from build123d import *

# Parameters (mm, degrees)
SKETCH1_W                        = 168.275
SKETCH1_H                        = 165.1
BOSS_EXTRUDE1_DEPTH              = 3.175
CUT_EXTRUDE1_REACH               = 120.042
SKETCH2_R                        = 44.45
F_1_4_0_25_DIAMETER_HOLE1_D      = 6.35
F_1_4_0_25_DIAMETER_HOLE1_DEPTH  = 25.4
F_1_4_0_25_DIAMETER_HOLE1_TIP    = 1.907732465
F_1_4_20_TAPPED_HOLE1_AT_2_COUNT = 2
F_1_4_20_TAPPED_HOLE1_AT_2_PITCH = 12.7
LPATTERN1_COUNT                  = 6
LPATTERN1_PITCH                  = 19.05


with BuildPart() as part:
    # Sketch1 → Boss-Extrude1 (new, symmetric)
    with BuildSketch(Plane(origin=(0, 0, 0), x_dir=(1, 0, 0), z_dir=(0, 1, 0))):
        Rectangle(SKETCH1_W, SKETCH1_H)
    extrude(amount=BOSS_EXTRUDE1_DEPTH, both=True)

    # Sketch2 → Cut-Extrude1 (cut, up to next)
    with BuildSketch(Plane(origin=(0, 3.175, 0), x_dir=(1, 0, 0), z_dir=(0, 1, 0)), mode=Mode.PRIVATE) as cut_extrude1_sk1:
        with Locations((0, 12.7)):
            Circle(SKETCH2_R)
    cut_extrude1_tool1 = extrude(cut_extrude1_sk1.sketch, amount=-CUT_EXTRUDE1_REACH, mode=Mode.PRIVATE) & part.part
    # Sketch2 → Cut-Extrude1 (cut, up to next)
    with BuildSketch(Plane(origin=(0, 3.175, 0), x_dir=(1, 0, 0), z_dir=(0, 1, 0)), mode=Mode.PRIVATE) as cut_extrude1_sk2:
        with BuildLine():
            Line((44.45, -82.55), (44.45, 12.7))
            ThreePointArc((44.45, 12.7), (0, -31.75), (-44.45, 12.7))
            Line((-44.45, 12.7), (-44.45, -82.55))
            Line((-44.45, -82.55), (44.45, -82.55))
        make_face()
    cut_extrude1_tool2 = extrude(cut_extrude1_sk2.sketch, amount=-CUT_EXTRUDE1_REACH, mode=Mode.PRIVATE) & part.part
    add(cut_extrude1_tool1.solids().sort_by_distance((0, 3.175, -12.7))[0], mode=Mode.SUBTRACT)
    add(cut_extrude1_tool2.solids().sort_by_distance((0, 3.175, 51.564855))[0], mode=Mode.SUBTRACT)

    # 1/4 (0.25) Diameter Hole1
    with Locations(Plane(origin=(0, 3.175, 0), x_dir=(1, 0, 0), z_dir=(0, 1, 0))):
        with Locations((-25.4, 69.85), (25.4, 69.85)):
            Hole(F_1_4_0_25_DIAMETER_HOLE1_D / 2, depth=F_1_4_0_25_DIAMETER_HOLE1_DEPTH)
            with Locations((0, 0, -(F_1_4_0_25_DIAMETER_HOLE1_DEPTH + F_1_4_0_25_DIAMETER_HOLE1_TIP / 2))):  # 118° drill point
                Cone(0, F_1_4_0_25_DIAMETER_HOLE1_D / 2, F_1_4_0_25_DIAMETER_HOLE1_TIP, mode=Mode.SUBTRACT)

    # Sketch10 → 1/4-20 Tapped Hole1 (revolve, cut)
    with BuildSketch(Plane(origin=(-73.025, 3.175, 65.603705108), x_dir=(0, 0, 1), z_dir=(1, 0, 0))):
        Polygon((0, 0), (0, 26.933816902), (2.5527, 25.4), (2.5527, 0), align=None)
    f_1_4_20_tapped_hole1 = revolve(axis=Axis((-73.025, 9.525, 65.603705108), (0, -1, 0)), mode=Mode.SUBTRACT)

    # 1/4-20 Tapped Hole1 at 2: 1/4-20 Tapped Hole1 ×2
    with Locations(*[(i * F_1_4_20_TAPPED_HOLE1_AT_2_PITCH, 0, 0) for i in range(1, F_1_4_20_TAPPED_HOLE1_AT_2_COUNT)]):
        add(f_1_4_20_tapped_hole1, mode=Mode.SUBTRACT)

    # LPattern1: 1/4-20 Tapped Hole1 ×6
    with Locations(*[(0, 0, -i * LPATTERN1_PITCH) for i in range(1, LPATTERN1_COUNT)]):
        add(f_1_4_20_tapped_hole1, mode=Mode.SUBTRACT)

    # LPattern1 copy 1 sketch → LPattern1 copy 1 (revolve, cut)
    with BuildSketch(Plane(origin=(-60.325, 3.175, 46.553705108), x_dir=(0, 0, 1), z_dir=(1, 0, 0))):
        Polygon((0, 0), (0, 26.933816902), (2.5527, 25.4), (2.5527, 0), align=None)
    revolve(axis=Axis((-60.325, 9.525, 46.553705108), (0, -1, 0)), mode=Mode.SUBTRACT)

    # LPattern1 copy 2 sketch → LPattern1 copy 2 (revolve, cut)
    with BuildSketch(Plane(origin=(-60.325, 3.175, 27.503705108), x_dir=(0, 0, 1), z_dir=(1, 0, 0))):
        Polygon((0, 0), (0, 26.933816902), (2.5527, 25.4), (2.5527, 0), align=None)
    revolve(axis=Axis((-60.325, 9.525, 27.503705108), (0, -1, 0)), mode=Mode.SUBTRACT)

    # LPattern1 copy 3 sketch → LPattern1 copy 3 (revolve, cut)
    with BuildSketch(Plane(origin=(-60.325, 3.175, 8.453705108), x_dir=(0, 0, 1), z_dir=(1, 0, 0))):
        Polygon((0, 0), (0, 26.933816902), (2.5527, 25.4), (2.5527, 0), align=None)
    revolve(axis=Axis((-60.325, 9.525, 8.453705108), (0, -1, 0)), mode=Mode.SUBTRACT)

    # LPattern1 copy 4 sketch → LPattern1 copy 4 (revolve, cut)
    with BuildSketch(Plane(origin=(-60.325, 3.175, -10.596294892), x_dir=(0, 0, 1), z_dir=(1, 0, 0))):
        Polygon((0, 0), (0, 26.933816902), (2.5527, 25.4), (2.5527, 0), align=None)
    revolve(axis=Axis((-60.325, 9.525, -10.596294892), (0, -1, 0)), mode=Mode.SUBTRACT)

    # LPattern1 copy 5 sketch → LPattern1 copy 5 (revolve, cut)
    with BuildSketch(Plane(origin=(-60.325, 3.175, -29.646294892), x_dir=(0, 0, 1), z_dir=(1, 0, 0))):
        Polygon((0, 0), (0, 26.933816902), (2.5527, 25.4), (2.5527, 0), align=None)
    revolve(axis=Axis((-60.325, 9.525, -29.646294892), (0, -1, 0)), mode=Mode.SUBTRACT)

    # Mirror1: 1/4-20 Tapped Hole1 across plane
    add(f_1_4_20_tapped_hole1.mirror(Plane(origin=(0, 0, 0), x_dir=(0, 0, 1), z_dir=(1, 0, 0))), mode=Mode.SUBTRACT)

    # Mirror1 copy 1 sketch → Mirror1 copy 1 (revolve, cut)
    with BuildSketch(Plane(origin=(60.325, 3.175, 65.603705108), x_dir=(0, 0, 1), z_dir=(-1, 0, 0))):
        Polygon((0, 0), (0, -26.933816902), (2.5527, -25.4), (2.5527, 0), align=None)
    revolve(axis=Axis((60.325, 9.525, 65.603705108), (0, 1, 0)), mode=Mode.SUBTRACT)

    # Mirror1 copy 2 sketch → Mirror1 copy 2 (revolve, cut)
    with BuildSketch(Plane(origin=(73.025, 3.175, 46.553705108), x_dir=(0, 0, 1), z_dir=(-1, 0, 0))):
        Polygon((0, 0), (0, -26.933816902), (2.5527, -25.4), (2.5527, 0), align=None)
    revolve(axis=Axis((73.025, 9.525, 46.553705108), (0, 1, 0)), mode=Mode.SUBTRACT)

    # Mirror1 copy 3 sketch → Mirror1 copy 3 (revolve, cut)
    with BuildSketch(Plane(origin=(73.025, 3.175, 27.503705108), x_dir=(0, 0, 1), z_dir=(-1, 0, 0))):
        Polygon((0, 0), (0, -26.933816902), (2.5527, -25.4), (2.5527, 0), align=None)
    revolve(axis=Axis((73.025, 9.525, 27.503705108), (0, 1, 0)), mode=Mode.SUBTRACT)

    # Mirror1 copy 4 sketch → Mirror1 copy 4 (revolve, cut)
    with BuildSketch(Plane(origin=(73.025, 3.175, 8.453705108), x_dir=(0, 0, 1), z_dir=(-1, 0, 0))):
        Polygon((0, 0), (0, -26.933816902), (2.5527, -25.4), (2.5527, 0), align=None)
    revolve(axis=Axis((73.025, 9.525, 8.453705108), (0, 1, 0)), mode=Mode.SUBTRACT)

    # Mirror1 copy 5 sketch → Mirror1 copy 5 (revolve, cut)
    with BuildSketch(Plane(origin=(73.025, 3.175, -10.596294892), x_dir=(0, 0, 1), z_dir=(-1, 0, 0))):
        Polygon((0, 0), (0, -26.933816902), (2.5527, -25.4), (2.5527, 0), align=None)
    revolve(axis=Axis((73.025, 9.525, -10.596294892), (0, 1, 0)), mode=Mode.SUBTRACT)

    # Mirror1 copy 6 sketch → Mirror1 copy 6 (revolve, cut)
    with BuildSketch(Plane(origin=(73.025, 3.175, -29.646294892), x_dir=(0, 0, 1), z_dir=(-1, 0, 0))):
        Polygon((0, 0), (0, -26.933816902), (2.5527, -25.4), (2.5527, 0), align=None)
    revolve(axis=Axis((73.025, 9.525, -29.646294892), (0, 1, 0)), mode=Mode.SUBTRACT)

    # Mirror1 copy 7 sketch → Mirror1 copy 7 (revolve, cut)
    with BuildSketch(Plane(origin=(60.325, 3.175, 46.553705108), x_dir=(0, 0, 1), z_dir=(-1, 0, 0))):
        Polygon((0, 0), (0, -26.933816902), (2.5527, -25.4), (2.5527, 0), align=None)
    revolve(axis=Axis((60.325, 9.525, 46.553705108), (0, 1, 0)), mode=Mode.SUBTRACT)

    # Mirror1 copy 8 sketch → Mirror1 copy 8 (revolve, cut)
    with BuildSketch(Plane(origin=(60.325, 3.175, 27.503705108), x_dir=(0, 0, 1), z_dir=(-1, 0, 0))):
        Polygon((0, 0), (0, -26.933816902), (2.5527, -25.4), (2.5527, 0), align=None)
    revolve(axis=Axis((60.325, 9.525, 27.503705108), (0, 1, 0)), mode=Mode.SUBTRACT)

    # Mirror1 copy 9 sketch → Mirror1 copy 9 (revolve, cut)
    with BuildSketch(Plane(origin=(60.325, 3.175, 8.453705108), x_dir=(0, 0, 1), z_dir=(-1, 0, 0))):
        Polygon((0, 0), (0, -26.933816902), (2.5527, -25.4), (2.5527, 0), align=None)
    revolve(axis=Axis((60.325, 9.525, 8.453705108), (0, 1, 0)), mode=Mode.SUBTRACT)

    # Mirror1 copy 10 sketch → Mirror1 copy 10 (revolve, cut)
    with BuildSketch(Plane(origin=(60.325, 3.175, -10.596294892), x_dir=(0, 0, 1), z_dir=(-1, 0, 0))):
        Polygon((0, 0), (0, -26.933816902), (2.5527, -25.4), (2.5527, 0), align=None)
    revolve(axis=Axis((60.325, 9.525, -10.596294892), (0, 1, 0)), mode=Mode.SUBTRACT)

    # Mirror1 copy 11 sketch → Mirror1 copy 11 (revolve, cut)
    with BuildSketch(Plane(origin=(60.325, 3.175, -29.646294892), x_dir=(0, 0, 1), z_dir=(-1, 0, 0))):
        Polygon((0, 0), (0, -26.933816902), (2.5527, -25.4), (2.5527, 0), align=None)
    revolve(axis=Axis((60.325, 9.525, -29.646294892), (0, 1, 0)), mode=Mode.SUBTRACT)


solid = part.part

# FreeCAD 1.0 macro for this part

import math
import FreeCAD as App
import Part
import Sketcher

V = App.Vector
Q = App.Units.Quantity

doc = App.newDocument("Part")
body = doc.addObject("PartDesign::Body", "Body")

# Sketch on XZ plane
sketch1 = body.newObject("Sketcher::SketchObject", "Sketch")
sketch1.AttachmentSupport = (doc.getObject("XZ_Plane"), [""])
sketch1.MapMode = "FlatFace"
sketch1.addGeometry(Part.LineSegment(V(-84, -83, 0), V(-84, 83, 0)), False)
sketch1.addGeometry(Part.LineSegment(V(-84, 83, 0), V(84, 83, 0)), False)
sketch1.addGeometry(Part.LineSegment(V(84, 83, 0), V(84, -83, 0)), False)
sketch1.addGeometry(Part.LineSegment(V(84, -83, 0), V(-84, -83, 0)), False)
sketch1.addConstraint(Sketcher.Constraint("Coincident", 0, 2, 1, 1))
sketch1.addConstraint(Sketcher.Constraint("Coincident", 1, 2, 2, 1))
sketch1.addConstraint(Sketcher.Constraint("Coincident", 2, 2, 3, 1))
sketch1.addConstraint(Sketcher.Constraint("Coincident", 3, 2, 0, 1))
sketch1.addConstraint(Sketcher.Constraint("Vertical", 0))
sketch1.addConstraint(Sketcher.Constraint("Horizontal", 1))
sketch1.addConstraint(Sketcher.Constraint("Vertical", 2))
sketch1.addConstraint(Sketcher.Constraint("Horizontal", 3))
sketch1.addConstraint(Sketcher.Constraint("Symmetric", 0, 2, 2, 2, -1, 1))
sketch1.addConstraint(Sketcher.Constraint("DistanceY", 0, 1, 0, 2, Q("6.5 in")))
sketch1.addConstraint(Sketcher.Constraint("DistanceX", 1, 1, 1, 2, Q("6.625 in")))
pad1 = body.newObject("PartDesign::Pad", "Pad")
pad1.Profile = sketch1
pad1.Length = Q("0.25 in")
pad1.Midplane = True

# Sketch on XZ plane
sketch2 = body.newObject("Sketcher::SketchObject", "Sketch001")
sketch2.AttachmentSupport = (doc.getObject("XZ_Plane"), [""])
sketch2.MapMode = "FlatFace"
sketch2.AttachmentOffset = App.Placement(V(0, 0, -0.125 * 25.4), App.Rotation())
sketch2.addGeometry(Part.Circle(V(0, -13, 0), V(0, 0, 1), 44), False)
sketch2.addConstraint(Sketcher.Constraint("PointOnObject", 0, 3, -2))
sketch2.addConstraint(Sketcher.Constraint("Diameter", 0, Q("3.5 in")))
sketch2.addConstraint(Sketcher.Constraint("DistanceY", 0, 3, -1, 1, Q("0.5 in")))
pocket1 = body.newObject("PartDesign::Pocket", "Pocket")
pocket1.Profile = sketch2
pocket1.Type = "UpToFirst"
pocket1.Reversed = True

# Sketch on XZ plane
sketch3 = body.newObject("Sketcher::SketchObject", "Sketch002")
sketch3.AttachmentSupport = (doc.getObject("XZ_Plane"), [""])
sketch3.MapMode = "FlatFace"
sketch3.AttachmentOffset = App.Placement(V(0, 0, -0.125 * 25.4), App.Rotation())
sketch3.addGeometry(Part.LineSegment(V(44, 83, 0), V(44, -13, 0)), False)
sketch3.addGeometry(Part.ArcOfCircle(Part.Circle(V(0, -13, 0), V(0, 0, 1), 44), math.radians(0), math.radians(180)), False)
sketch3.addGeometry(Part.LineSegment(V(-44, -13, 0), V(-44, 83, 0)), False)
sketch3.addGeometry(Part.LineSegment(V(-44, 83, 0), V(44, 83, 0)), False)
sketch3.addConstraint(Sketcher.Constraint("Tangent", 0, 2, 1, 1))
sketch3.addConstraint(Sketcher.Constraint("Tangent", 1, 2, 2, 1))
sketch3.addConstraint(Sketcher.Constraint("Coincident", 2, 2, 3, 1))
sketch3.addConstraint(Sketcher.Constraint("Coincident", 3, 2, 0, 1))
sketch3.addConstraint(Sketcher.Constraint("Vertical", 0))
sketch3.addConstraint(Sketcher.Constraint("Vertical", 2))
sketch3.addConstraint(Sketcher.Constraint("Horizontal", 3))
sketch3.addConstraint(Sketcher.Constraint("PointOnObject", 1, 3, -2))
sketch3.addConstraint(Sketcher.Constraint("Radius", 1, Q("1.75 in")))
sketch3.addConstraint(Sketcher.Constraint("DistanceY", 0, 2, 0, 1, Q("3.75 in")))
sketch3.addConstraint(Sketcher.Constraint("DistanceY", 1, 3, -1, 1, Q("0.5 in")))
pocket2 = body.newObject("PartDesign::Pocket", "Pocket001")
pocket2.Profile = sketch3
pocket2.Type = "UpToFirst"
pocket2.Reversed = True

# Sketch on XZ plane
sketch4 = body.newObject("Sketcher::SketchObject", "Sketch003")
sketch4.AttachmentSupport = (doc.getObject("XZ_Plane"), [""])
sketch4.MapMode = "FlatFace"
sketch4.AttachmentOffset = App.Placement(V(0, 0, -0.125 * 25.4), App.Rotation())
sketch4.addGeometry(Part.Circle(V(-25.4, -69.8, 0), V(0, 0, 1), 3.2), False)
sketch4.addGeometry(Part.Circle(V(25.4, -69.8, 0), V(0, 0, 1), 3.2), False)
sketch4.addConstraint(Sketcher.Constraint("Equal", 0, 1))
sketch4.addConstraint(Sketcher.Constraint("Symmetric", 0, 3, 1, 3, -2))
sketch4.addConstraint(Sketcher.Constraint("Diameter", 0, Q("0.25 in")))
sketch4.addConstraint(Sketcher.Constraint("DistanceX", 0, 3, -1, 1, Q("1 in")))
sketch4.addConstraint(Sketcher.Constraint("DistanceY", 0, 3, -1, 1, Q("2.75 in")))
doc.recompute()
hole = body.newObject("PartDesign::Hole", "Hole")
hole.Profile = sketch4
hole.ThreadType = "None"
hole.Diameter = Q("0.25 in")
hole.DepthType = "Dimension"
hole.Depth = Q("1 in")
hole.DrillPoint = "Angled"
hole.DrillPointAngle = 118
hole.Reversed = True

# Sketch on YZ plane
sketch5 = body.newObject("Sketcher::SketchObject", "Sketch004")
sketch5.AttachmentSupport = (doc.getObject("YZ_Plane"), [""])
sketch5.MapMode = "FlatFace"
sketch5.AttachmentOffset = App.Placement(V(0, 0, -2.875 * 25.4), App.Rotation())
sketch5.addGeometry(Part.LineSegment(V(-23.8, 65.6, 0), V(3.2, 65.6, 0)), False)
sketch5.addGeometry(Part.LineSegment(V(3.2, 65.6, 0), V(3.2, 68.2, 0)), False)
sketch5.addGeometry(Part.LineSegment(V(3.2, 68.2, 0), V(-22.2, 68.2, 0)), False)
sketch5.addGeometry(Part.LineSegment(V(-22.2, 68.2, 0), V(-23.8, 65.6, 0)), False)
sketch5.addGeometry(Part.LineSegment(V(3.2, 65.6, 0), V(-23.8, 65.6, 0)), True)  # axis
sketch5.addConstraint(Sketcher.Constraint("Coincident", 0, 2, 1, 1))
sketch5.addConstraint(Sketcher.Constraint("Coincident", 1, 2, 2, 1))
sketch5.addConstraint(Sketcher.Constraint("Coincident", 2, 2, 3, 1))
sketch5.addConstraint(Sketcher.Constraint("Coincident", 3, 2, 0, 1))
sketch5.addConstraint(Sketcher.Constraint("Horizontal", 0))
sketch5.addConstraint(Sketcher.Constraint("Vertical", 1))
sketch5.addConstraint(Sketcher.Constraint("Horizontal", 2))
sketch5.addConstraint(Sketcher.Constraint("Horizontal", 4))
sketch5.addConstraint(Sketcher.Constraint("Coincident", 4, 1, 0, 2))
sketch5.addConstraint(Sketcher.Constraint("Equal", 0, 4))
sketch5.addConstraint(Sketcher.Constraint("DistanceX", 2, 2, 2, 1, Q("1 in")))
sketch5.addConstraint(Sketcher.Constraint("Angle", 3, Q("-121 deg")))
sketch5.addConstraint(Sketcher.Constraint("DistanceY", 1, 1, 1, 2, Q("0.1005 in")))
sketch5.addConstraint(Sketcher.Constraint("DistanceX", -1, 1, 0, 2, Q("0.125 in")))
sketch5.addConstraint(Sketcher.Constraint("DistanceY", -1, 1, 0, 2, 65.603705))
groove = body.newObject("PartDesign::Groove", "Groove")
groove.Profile = sketch5
groove.ReferenceAxis = (sketch5, ["Axis0"])
groove.Angle = 360
doc.recompute()

linearpattern = body.newObject("PartDesign::LinearPattern", "LinearPattern")
linearpattern.Originals = [groove]
linearpattern.Direction = (doc.getObject("X_Axis"), [""])
linearpattern.Mode = "offset"
linearpattern.Offset = Q("0.5 in")
linearpattern.Occurrences = 2
body.Tip = linearpattern
doc.recompute()

linearpattern2 = body.newObject("PartDesign::LinearPattern", "LinearPattern001")
linearpattern2.Originals = [groove]
linearpattern2.Direction = (doc.getObject("Z_Axis"), [""])
linearpattern2.Mode = "offset"
linearpattern2.Offset = Q("0.75 in")
linearpattern2.Occurrences = 6
linearpattern2.Reversed = True
body.Tip = linearpattern2

# Sketch on YZ plane
sketch6 = body.newObject("Sketcher::SketchObject", "Sketch005")
sketch6.AttachmentSupport = (doc.getObject("YZ_Plane"), [""])
sketch6.MapMode = "FlatFace"
sketch6.AttachmentOffset = App.Placement(V(0, 0, -2.375 * 25.4), App.Rotation())
sketch6.addGeometry(Part.LineSegment(V(-23.8, 46.6, 0), V(3.2, 46.6, 0)), False)
sketch6.addGeometry(Part.LineSegment(V(3.2, 46.6, 0), V(3.2, 49.1, 0)), False)
sketch6.addGeometry(Part.LineSegment(V(3.2, 49.1, 0), V(-22.2, 49.1, 0)), False)
sketch6.addGeometry(Part.LineSegment(V(-22.2, 49.1, 0), V(-23.8, 46.6, 0)), False)
sketch6.addGeometry(Part.LineSegment(V(3.2, 46.6, 0), V(-23.8, 46.6, 0)), True)  # axis
sketch6.addConstraint(Sketcher.Constraint("Coincident", 0, 2, 1, 1))
sketch6.addConstraint(Sketcher.Constraint("Coincident", 1, 2, 2, 1))
sketch6.addConstraint(Sketcher.Constraint("Coincident", 2, 2, 3, 1))
sketch6.addConstraint(Sketcher.Constraint("Coincident", 3, 2, 0, 1))
sketch6.addConstraint(Sketcher.Constraint("Horizontal", 0))
sketch6.addConstraint(Sketcher.Constraint("Vertical", 1))
sketch6.addConstraint(Sketcher.Constraint("Horizontal", 2))
sketch6.addConstraint(Sketcher.Constraint("Horizontal", 4))
sketch6.addConstraint(Sketcher.Constraint("Coincident", 4, 1, 0, 2))
sketch6.addConstraint(Sketcher.Constraint("Equal", 0, 4))
sketch6.addConstraint(Sketcher.Constraint("DistanceX", 2, 2, 2, 1, Q("1 in")))
sketch6.addConstraint(Sketcher.Constraint("Angle", 3, Q("-121 deg")))
sketch6.addConstraint(Sketcher.Constraint("DistanceY", 1, 1, 1, 2, Q("0.1005 in")))
sketch6.addConstraint(Sketcher.Constraint("DistanceX", -1, 1, 0, 2, Q("0.125 in")))
sketch6.addConstraint(Sketcher.Constraint("DistanceY", -1, 1, 0, 2, 46.553705))
groove2 = body.newObject("PartDesign::Groove", "Groove001")
groove2.Profile = sketch6
groove2.ReferenceAxis = (sketch6, ["Axis0"])
groove2.Angle = 360

# Sketch on YZ plane
sketch7 = body.newObject("Sketcher::SketchObject", "Sketch006")
sketch7.AttachmentSupport = (doc.getObject("YZ_Plane"), [""])
sketch7.MapMode = "FlatFace"
sketch7.AttachmentOffset = App.Placement(V(0, 0, -2.375 * 25.4), App.Rotation())
sketch7.addGeometry(Part.LineSegment(V(-23.8, 27.5, 0), V(3.2, 27.5, 0)), False)
sketch7.addGeometry(Part.LineSegment(V(3.2, 27.5, 0), V(3.2, 30.1, 0)), False)
sketch7.addGeometry(Part.LineSegment(V(3.2, 30.1, 0), V(-22.2, 30.1, 0)), False)
sketch7.addGeometry(Part.LineSegment(V(-22.2, 30.1, 0), V(-23.8, 27.5, 0)), False)
sketch7.addGeometry(Part.LineSegment(V(3.2, 27.5, 0), V(-23.8, 27.5, 0)), True)  # axis
sketch7.addConstraint(Sketcher.Constraint("Coincident", 0, 2, 1, 1))
sketch7.addConstraint(Sketcher.Constraint("Coincident", 1, 2, 2, 1))
sketch7.addConstraint(Sketcher.Constraint("Coincident", 2, 2, 3, 1))
sketch7.addConstraint(Sketcher.Constraint("Coincident", 3, 2, 0, 1))
sketch7.addConstraint(Sketcher.Constraint("Horizontal", 0))
sketch7.addConstraint(Sketcher.Constraint("Vertical", 1))
sketch7.addConstraint(Sketcher.Constraint("Horizontal", 2))
sketch7.addConstraint(Sketcher.Constraint("Horizontal", 4))
sketch7.addConstraint(Sketcher.Constraint("Coincident", 4, 1, 0, 2))
sketch7.addConstraint(Sketcher.Constraint("Equal", 0, 4))
sketch7.addConstraint(Sketcher.Constraint("DistanceX", 2, 2, 2, 1, Q("1 in")))
sketch7.addConstraint(Sketcher.Constraint("Angle", 3, Q("-121 deg")))
sketch7.addConstraint(Sketcher.Constraint("DistanceY", 1, 1, 1, 2, Q("0.1005 in")))
sketch7.addConstraint(Sketcher.Constraint("DistanceX", -1, 1, 0, 2, Q("0.125 in")))
sketch7.addConstraint(Sketcher.Constraint("DistanceY", -1, 1, 0, 2, 27.503705))
groove3 = body.newObject("PartDesign::Groove", "Groove002")
groove3.Profile = sketch7
groove3.ReferenceAxis = (sketch7, ["Axis0"])
groove3.Angle = 360

# Sketch on YZ plane
sketch8 = body.newObject("Sketcher::SketchObject", "Sketch007")
sketch8.AttachmentSupport = (doc.getObject("YZ_Plane"), [""])
sketch8.MapMode = "FlatFace"
sketch8.AttachmentOffset = App.Placement(V(0, 0, -2.375 * 25.4), App.Rotation())
sketch8.addGeometry(Part.LineSegment(V(-23.8, 8.5, 0), V(3.2, 8.5, 0)), False)
sketch8.addGeometry(Part.LineSegment(V(3.2, 8.5, 0), V(3.2, 11, 0)), False)
sketch8.addGeometry(Part.LineSegment(V(3.2, 11, 0), V(-22.2, 11, 0)), False)
sketch8.addGeometry(Part.LineSegment(V(-22.2, 11, 0), V(-23.8, 8.5, 0)), False)
sketch8.addGeometry(Part.LineSegment(V(3.2, 8.5, 0), V(-23.8, 8.5, 0)), True)  # axis
sketch8.addConstraint(Sketcher.Constraint("Coincident", 0, 2, 1, 1))
sketch8.addConstraint(Sketcher.Constraint("Coincident", 1, 2, 2, 1))
sketch8.addConstraint(Sketcher.Constraint("Coincident", 2, 2, 3, 1))
sketch8.addConstraint(Sketcher.Constraint("Coincident", 3, 2, 0, 1))
sketch8.addConstraint(Sketcher.Constraint("Horizontal", 0))
sketch8.addConstraint(Sketcher.Constraint("Vertical", 1))
sketch8.addConstraint(Sketcher.Constraint("Horizontal", 2))
sketch8.addConstraint(Sketcher.Constraint("Horizontal", 4))
sketch8.addConstraint(Sketcher.Constraint("Coincident", 4, 1, 0, 2))
sketch8.addConstraint(Sketcher.Constraint("Equal", 0, 4))
sketch8.addConstraint(Sketcher.Constraint("DistanceX", 2, 2, 2, 1, Q("1 in")))
sketch8.addConstraint(Sketcher.Constraint("Angle", 3, Q("-121 deg")))
sketch8.addConstraint(Sketcher.Constraint("DistanceY", 1, 1, 1, 2, Q("0.1005 in")))
sketch8.addConstraint(Sketcher.Constraint("DistanceX", -1, 1, 0, 2, Q("0.125 in")))
sketch8.addConstraint(Sketcher.Constraint("DistanceY", -1, 1, 0, 2, 8.453705))
groove4 = body.newObject("PartDesign::Groove", "Groove003")
groove4.Profile = sketch8
groove4.ReferenceAxis = (sketch8, ["Axis0"])
groove4.Angle = 360

# Sketch on YZ plane
sketch9 = body.newObject("Sketcher::SketchObject", "Sketch008")
sketch9.AttachmentSupport = (doc.getObject("YZ_Plane"), [""])
sketch9.MapMode = "FlatFace"
sketch9.AttachmentOffset = App.Placement(V(0, 0, -2.375 * 25.4), App.Rotation())
sketch9.addGeometry(Part.LineSegment(V(-23.8, -10.6, 0), V(3.2, -10.6, 0)), False)
sketch9.addGeometry(Part.LineSegment(V(3.2, -10.6, 0), V(3.2, -8, 0)), False)
sketch9.addGeometry(Part.LineSegment(V(3.2, -8, 0), V(-22.2, -8, 0)), False)
sketch9.addGeometry(Part.LineSegment(V(-22.2, -8, 0), V(-23.8, -10.6, 0)), False)
sketch9.addGeometry(Part.LineSegment(V(3.2, -10.6, 0), V(-23.8, -10.6, 0)), True)  # axis
sketch9.addConstraint(Sketcher.Constraint("Coincident", 0, 2, 1, 1))
sketch9.addConstraint(Sketcher.Constraint("Coincident", 1, 2, 2, 1))
sketch9.addConstraint(Sketcher.Constraint("Coincident", 2, 2, 3, 1))
sketch9.addConstraint(Sketcher.Constraint("Coincident", 3, 2, 0, 1))
sketch9.addConstraint(Sketcher.Constraint("Horizontal", 0))
sketch9.addConstraint(Sketcher.Constraint("Vertical", 1))
sketch9.addConstraint(Sketcher.Constraint("Horizontal", 2))
sketch9.addConstraint(Sketcher.Constraint("Horizontal", 4))
sketch9.addConstraint(Sketcher.Constraint("Coincident", 4, 1, 0, 2))
sketch9.addConstraint(Sketcher.Constraint("Equal", 0, 4))
sketch9.addConstraint(Sketcher.Constraint("DistanceX", 2, 2, 2, 1, Q("1 in")))
sketch9.addConstraint(Sketcher.Constraint("Angle", 3, Q("-121 deg")))
sketch9.addConstraint(Sketcher.Constraint("DistanceY", 1, 1, 1, 2, Q("0.1005 in")))
sketch9.addConstraint(Sketcher.Constraint("DistanceX", -1, 1, 0, 2, Q("0.125 in")))
sketch9.addConstraint(Sketcher.Constraint("DistanceY", 0, 2, -1, 1, 10.596295))
groove5 = body.newObject("PartDesign::Groove", "Groove004")
groove5.Profile = sketch9
groove5.ReferenceAxis = (sketch9, ["Axis0"])
groove5.Angle = 360

# Sketch on YZ plane
sketch10 = body.newObject("Sketcher::SketchObject", "Sketch009")
sketch10.AttachmentSupport = (doc.getObject("YZ_Plane"), [""])
sketch10.MapMode = "FlatFace"
sketch10.AttachmentOffset = App.Placement(V(0, 0, -2.375 * 25.4), App.Rotation())
sketch10.addGeometry(Part.LineSegment(V(-23.8, -29.6, 0), V(3.2, -29.6, 0)), False)
sketch10.addGeometry(Part.LineSegment(V(3.2, -29.6, 0), V(3.2, -27.1, 0)), False)
sketch10.addGeometry(Part.LineSegment(V(3.2, -27.1, 0), V(-22.2, -27.1, 0)), False)
sketch10.addGeometry(Part.LineSegment(V(-22.2, -27.1, 0), V(-23.8, -29.6, 0)), False)
sketch10.addGeometry(Part.LineSegment(V(3.2, -29.6, 0), V(-23.8, -29.6, 0)), True)  # axis
sketch10.addConstraint(Sketcher.Constraint("Coincident", 0, 2, 1, 1))
sketch10.addConstraint(Sketcher.Constraint("Coincident", 1, 2, 2, 1))
sketch10.addConstraint(Sketcher.Constraint("Coincident", 2, 2, 3, 1))
sketch10.addConstraint(Sketcher.Constraint("Coincident", 3, 2, 0, 1))
sketch10.addConstraint(Sketcher.Constraint("Horizontal", 0))
sketch10.addConstraint(Sketcher.Constraint("Vertical", 1))
sketch10.addConstraint(Sketcher.Constraint("Horizontal", 2))
sketch10.addConstraint(Sketcher.Constraint("Horizontal", 4))
sketch10.addConstraint(Sketcher.Constraint("Coincident", 4, 1, 0, 2))
sketch10.addConstraint(Sketcher.Constraint("Equal", 0, 4))
sketch10.addConstraint(Sketcher.Constraint("DistanceX", 2, 2, 2, 1, Q("1 in")))
sketch10.addConstraint(Sketcher.Constraint("Angle", 3, Q("-121 deg")))
sketch10.addConstraint(Sketcher.Constraint("DistanceY", 1, 1, 1, 2, Q("0.1005 in")))
sketch10.addConstraint(Sketcher.Constraint("DistanceX", -1, 1, 0, 2, Q("0.125 in")))
sketch10.addConstraint(Sketcher.Constraint("DistanceY", 0, 2, -1, 1, 29.646295))
groove6 = body.newObject("PartDesign::Groove", "Groove005")
groove6.Profile = sketch10
groove6.ReferenceAxis = (sketch10, ["Axis0"])
groove6.Angle = 360
doc.recompute()

mirrored = body.newObject("PartDesign::Mirrored", "Mirrored")
mirrored.Originals = [groove]
mirrored.MirrorPlane = (doc.getObject("YZ_Plane"), [""])
body.Tip = mirrored

# Sketch on YZ plane
sketch11 = body.newObject("Sketcher::SketchObject", "Sketch010")
sketch11.AttachmentSupport = (doc.getObject("YZ_Plane"), [""])
sketch11.MapMode = "FlatFace"
sketch11.AttachmentOffset = App.Placement(V(0, 0, 2.375 * 25.4), App.Rotation())
sketch11.addGeometry(Part.LineSegment(V(3.2, 65.6, 0), V(-23.8, 65.6, 0)), False)
sketch11.addGeometry(Part.LineSegment(V(-23.8, 65.6, 0), V(-22.2, 68.2, 0)), False)
sketch11.addGeometry(Part.LineSegment(V(-22.2, 68.2, 0), V(3.2, 68.2, 0)), False)
sketch11.addGeometry(Part.LineSegment(V(3.2, 68.2, 0), V(3.2, 65.6, 0)), False)
sketch11.addGeometry(Part.LineSegment(V(-23.8, 65.6, 0), V(3.2, 65.6, 0)), True)  # axis
sketch11.addConstraint(Sketcher.Constraint("Coincident", 0, 2, 1, 1))
sketch11.addConstraint(Sketcher.Constraint("Coincident", 1, 2, 2, 1))
sketch11.addConstraint(Sketcher.Constraint("Coincident", 2, 2, 3, 1))
sketch11.addConstraint(Sketcher.Constraint("Coincident", 3, 2, 0, 1))
sketch11.addConstraint(Sketcher.Constraint("Horizontal", 0))
sketch11.addConstraint(Sketcher.Constraint("Horizontal", 2))
sketch11.addConstraint(Sketcher.Constraint("Vertical", 3))
sketch11.addConstraint(Sketcher.Constraint("Horizontal", 4))
sketch11.addConstraint(Sketcher.Constraint("Coincident", 4, 1, 0, 2))
sketch11.addConstraint(Sketcher.Constraint("Vertical", 2, 2, 4, 2))
sketch11.addConstraint(Sketcher.Constraint("DistanceX", 2, 1, 2, 2, Q("1 in")))
sketch11.addConstraint(Sketcher.Constraint("Angle", 1, Q("59 deg")))
sketch11.addConstraint(Sketcher.Constraint("DistanceY", 3, 2, 3, 1, Q("0.1005 in")))
sketch11.addConstraint(Sketcher.Constraint("DistanceX", 1, 2, -1, 1, Q("0.875 in")))
sketch11.addConstraint(Sketcher.Constraint("DistanceY", -1, 1, 0, 2, 65.603705))
groove7 = body.newObject("PartDesign::Groove", "Groove006")
groove7.Profile = sketch11
groove7.ReferenceAxis = (sketch11, ["Axis0"])
groove7.Angle = 360

# Sketch on YZ plane
sketch12 = body.newObject("Sketcher::SketchObject", "Sketch011")
sketch12.AttachmentSupport = (doc.getObject("YZ_Plane"), [""])
sketch12.MapMode = "FlatFace"
sketch12.AttachmentOffset = App.Placement(V(0, 0, 2.875 * 25.4), App.Rotation())
sketch12.addGeometry(Part.LineSegment(V(3.2, 46.6, 0), V(-23.8, 46.6, 0)), False)
sketch12.addGeometry(Part.LineSegment(V(-23.8, 46.6, 0), V(-22.2, 49.1, 0)), False)
sketch12.addGeometry(Part.LineSegment(V(-22.2, 49.1, 0), V(3.2, 49.1, 0)), False)
sketch12.addGeometry(Part.LineSegment(V(3.2, 49.1, 0), V(3.2, 46.6, 0)), False)
sketch12.addGeometry(Part.LineSegment(V(-23.8, 46.6, 0), V(3.2, 46.6, 0)), True)  # axis
sketch12.addConstraint(Sketcher.Constraint("Coincident", 0, 2, 1, 1))
sketch12.addConstraint(Sketcher.Constraint("Coincident", 1, 2, 2, 1))
sketch12.addConstraint(Sketcher.Constraint("Coincident", 2, 2, 3, 1))
sketch12.addConstraint(Sketcher.Constraint("Coincident", 3, 2, 0, 1))
sketch12.addConstraint(Sketcher.Constraint("Horizontal", 0))
sketch12.addConstraint(Sketcher.Constraint("Horizontal", 2))
sketch12.addConstraint(Sketcher.Constraint("Vertical", 3))
sketch12.addConstraint(Sketcher.Constraint("Horizontal", 4))
sketch12.addConstraint(Sketcher.Constraint("Coincident", 4, 1, 0, 2))
sketch12.addConstraint(Sketcher.Constraint("Vertical", 2, 2, 4, 2))
sketch12.addConstraint(Sketcher.Constraint("DistanceX", 2, 1, 2, 2, Q("1 in")))
sketch12.addConstraint(Sketcher.Constraint("Angle", 1, Q("59 deg")))
sketch12.addConstraint(Sketcher.Constraint("DistanceY", 3, 2, 3, 1, Q("0.1005 in")))
sketch12.addConstraint(Sketcher.Constraint("DistanceX", 1, 2, -1, 1, Q("0.875 in")))
sketch12.addConstraint(Sketcher.Constraint("DistanceY", -1, 1, 0, 2, 46.553705))
groove8 = body.newObject("PartDesign::Groove", "Groove007")
groove8.Profile = sketch12
groove8.ReferenceAxis = (sketch12, ["Axis0"])
groove8.Angle = 360

# Sketch on YZ plane
sketch13 = body.newObject("Sketcher::SketchObject", "Sketch012")
sketch13.AttachmentSupport = (doc.getObject("YZ_Plane"), [""])
sketch13.MapMode = "FlatFace"
sketch13.AttachmentOffset = App.Placement(V(0, 0, 2.875 * 25.4), App.Rotation())
sketch13.addGeometry(Part.LineSegment(V(3.2, 27.5, 0), V(-23.8, 27.5, 0)), False)
sketch13.addGeometry(Part.LineSegment(V(-23.8, 27.5, 0), V(-22.2, 30.1, 0)), False)
sketch13.addGeometry(Part.LineSegment(V(-22.2, 30.1, 0), V(3.2, 30.1, 0)), False)
sketch13.addGeometry(Part.LineSegment(V(3.2, 30.1, 0), V(3.2, 27.5, 0)), False)
sketch13.addGeometry(Part.LineSegment(V(-23.8, 27.5, 0), V(3.2, 27.5, 0)), True)  # axis
sketch13.addConstraint(Sketcher.Constraint("Coincident", 0, 2, 1, 1))
sketch13.addConstraint(Sketcher.Constraint("Coincident", 1, 2, 2, 1))
sketch13.addConstraint(Sketcher.Constraint("Coincident", 2, 2, 3, 1))
sketch13.addConstraint(Sketcher.Constraint("Coincident", 3, 2, 0, 1))
sketch13.addConstraint(Sketcher.Constraint("Horizontal", 0))
sketch13.addConstraint(Sketcher.Constraint("Horizontal", 2))
sketch13.addConstraint(Sketcher.Constraint("Vertical", 3))
sketch13.addConstraint(Sketcher.Constraint("Horizontal", 4))
sketch13.addConstraint(Sketcher.Constraint("Coincident", 4, 1, 0, 2))
sketch13.addConstraint(Sketcher.Constraint("Vertical", 2, 2, 4, 2))
sketch13.addConstraint(Sketcher.Constraint("DistanceX", 2, 1, 2, 2, Q("1 in")))
sketch13.addConstraint(Sketcher.Constraint("Angle", 1, Q("59 deg")))
sketch13.addConstraint(Sketcher.Constraint("DistanceY", 3, 2, 3, 1, Q("0.1005 in")))
sketch13.addConstraint(Sketcher.Constraint("DistanceX", 1, 2, -1, 1, Q("0.875 in")))
sketch13.addConstraint(Sketcher.Constraint("DistanceY", -1, 1, 0, 2, 27.503705))
groove9 = body.newObject("PartDesign::Groove", "Groove008")
groove9.Profile = sketch13
groove9.ReferenceAxis = (sketch13, ["Axis0"])
groove9.Angle = 360

# Sketch on YZ plane
sketch14 = body.newObject("Sketcher::SketchObject", "Sketch013")
sketch14.AttachmentSupport = (doc.getObject("YZ_Plane"), [""])
sketch14.MapMode = "FlatFace"
sketch14.AttachmentOffset = App.Placement(V(0, 0, 2.875 * 25.4), App.Rotation())
sketch14.addGeometry(Part.LineSegment(V(3.2, 8.5, 0), V(-23.8, 8.5, 0)), False)
sketch14.addGeometry(Part.LineSegment(V(-23.8, 8.5, 0), V(-22.2, 11, 0)), False)
sketch14.addGeometry(Part.LineSegment(V(-22.2, 11, 0), V(3.2, 11, 0)), False)
sketch14.addGeometry(Part.LineSegment(V(3.2, 11, 0), V(3.2, 8.5, 0)), False)
sketch14.addGeometry(Part.LineSegment(V(-23.8, 8.5, 0), V(3.2, 8.5, 0)), True)  # axis
sketch14.addConstraint(Sketcher.Constraint("Coincident", 0, 2, 1, 1))
sketch14.addConstraint(Sketcher.Constraint("Coincident", 1, 2, 2, 1))
sketch14.addConstraint(Sketcher.Constraint("Coincident", 2, 2, 3, 1))
sketch14.addConstraint(Sketcher.Constraint("Coincident", 3, 2, 0, 1))
sketch14.addConstraint(Sketcher.Constraint("Horizontal", 0))
sketch14.addConstraint(Sketcher.Constraint("Horizontal", 2))
sketch14.addConstraint(Sketcher.Constraint("Vertical", 3))
sketch14.addConstraint(Sketcher.Constraint("Horizontal", 4))
sketch14.addConstraint(Sketcher.Constraint("Coincident", 4, 1, 0, 2))
sketch14.addConstraint(Sketcher.Constraint("Vertical", 2, 2, 4, 2))
sketch14.addConstraint(Sketcher.Constraint("DistanceX", 2, 1, 2, 2, Q("1 in")))
sketch14.addConstraint(Sketcher.Constraint("Angle", 1, Q("59 deg")))
sketch14.addConstraint(Sketcher.Constraint("DistanceY", 3, 2, 3, 1, Q("0.1005 in")))
sketch14.addConstraint(Sketcher.Constraint("DistanceX", 1, 2, -1, 1, Q("0.875 in")))
sketch14.addConstraint(Sketcher.Constraint("DistanceY", -1, 1, 0, 2, 8.453705))
groove10 = body.newObject("PartDesign::Groove", "Groove009")
groove10.Profile = sketch14
groove10.ReferenceAxis = (sketch14, ["Axis0"])
groove10.Angle = 360

# Sketch on YZ plane
sketch15 = body.newObject("Sketcher::SketchObject", "Sketch014")
sketch15.AttachmentSupport = (doc.getObject("YZ_Plane"), [""])
sketch15.MapMode = "FlatFace"
sketch15.AttachmentOffset = App.Placement(V(0, 0, 2.875 * 25.4), App.Rotation())
sketch15.addGeometry(Part.LineSegment(V(3.2, -10.6, 0), V(-23.8, -10.6, 0)), False)
sketch15.addGeometry(Part.LineSegment(V(-23.8, -10.6, 0), V(-22.2, -8, 0)), False)
sketch15.addGeometry(Part.LineSegment(V(-22.2, -8, 0), V(3.2, -8, 0)), False)
sketch15.addGeometry(Part.LineSegment(V(3.2, -8, 0), V(3.2, -10.6, 0)), False)
sketch15.addGeometry(Part.LineSegment(V(-23.8, -10.6, 0), V(3.2, -10.6, 0)), True)  # axis
sketch15.addConstraint(Sketcher.Constraint("Coincident", 0, 2, 1, 1))
sketch15.addConstraint(Sketcher.Constraint("Coincident", 1, 2, 2, 1))
sketch15.addConstraint(Sketcher.Constraint("Coincident", 2, 2, 3, 1))
sketch15.addConstraint(Sketcher.Constraint("Coincident", 3, 2, 0, 1))
sketch15.addConstraint(Sketcher.Constraint("Horizontal", 0))
sketch15.addConstraint(Sketcher.Constraint("Horizontal", 2))
sketch15.addConstraint(Sketcher.Constraint("Vertical", 3))
sketch15.addConstraint(Sketcher.Constraint("Horizontal", 4))
sketch15.addConstraint(Sketcher.Constraint("Coincident", 4, 1, 0, 2))
sketch15.addConstraint(Sketcher.Constraint("Vertical", 2, 2, 4, 2))
sketch15.addConstraint(Sketcher.Constraint("DistanceX", 2, 1, 2, 2, Q("1 in")))
sketch15.addConstraint(Sketcher.Constraint("Angle", 1, Q("59 deg")))
sketch15.addConstraint(Sketcher.Constraint("DistanceY", 3, 2, 3, 1, Q("0.1005 in")))
sketch15.addConstraint(Sketcher.Constraint("DistanceX", 1, 2, -1, 1, Q("0.875 in")))
sketch15.addConstraint(Sketcher.Constraint("DistanceY", 0, 2, -1, 1, 10.596295))
groove11 = body.newObject("PartDesign::Groove", "Groove010")
groove11.Profile = sketch15
groove11.ReferenceAxis = (sketch15, ["Axis0"])
groove11.Angle = 360

# Sketch on YZ plane
sketch16 = body.newObject("Sketcher::SketchObject", "Sketch015")
sketch16.AttachmentSupport = (doc.getObject("YZ_Plane"), [""])
sketch16.MapMode = "FlatFace"
sketch16.AttachmentOffset = App.Placement(V(0, 0, 2.875 * 25.4), App.Rotation())
sketch16.addGeometry(Part.LineSegment(V(3.2, -29.6, 0), V(-23.8, -29.6, 0)), False)
sketch16.addGeometry(Part.LineSegment(V(-23.8, -29.6, 0), V(-22.2, -27.1, 0)), False)
sketch16.addGeometry(Part.LineSegment(V(-22.2, -27.1, 0), V(3.2, -27.1, 0)), False)
sketch16.addGeometry(Part.LineSegment(V(3.2, -27.1, 0), V(3.2, -29.6, 0)), False)
sketch16.addGeometry(Part.LineSegment(V(-23.8, -29.6, 0), V(3.2, -29.6, 0)), True)  # axis
sketch16.addConstraint(Sketcher.Constraint("Coincident", 0, 2, 1, 1))
sketch16.addConstraint(Sketcher.Constraint("Coincident", 1, 2, 2, 1))
sketch16.addConstraint(Sketcher.Constraint("Coincident", 2, 2, 3, 1))
sketch16.addConstraint(Sketcher.Constraint("Coincident", 3, 2, 0, 1))
sketch16.addConstraint(Sketcher.Constraint("Horizontal", 0))
sketch16.addConstraint(Sketcher.Constraint("Horizontal", 2))
sketch16.addConstraint(Sketcher.Constraint("Vertical", 3))
sketch16.addConstraint(Sketcher.Constraint("Horizontal", 4))
sketch16.addConstraint(Sketcher.Constraint("Coincident", 4, 1, 0, 2))
sketch16.addConstraint(Sketcher.Constraint("Vertical", 2, 2, 4, 2))
sketch16.addConstraint(Sketcher.Constraint("DistanceX", 2, 1, 2, 2, Q("1 in")))
sketch16.addConstraint(Sketcher.Constraint("Angle", 1, Q("59 deg")))
sketch16.addConstraint(Sketcher.Constraint("DistanceY", 3, 2, 3, 1, Q("0.1005 in")))
sketch16.addConstraint(Sketcher.Constraint("DistanceX", 1, 2, -1, 1, Q("0.875 in")))
sketch16.addConstraint(Sketcher.Constraint("DistanceY", 0, 2, -1, 1, 29.646295))
groove12 = body.newObject("PartDesign::Groove", "Groove011")
groove12.Profile = sketch16
groove12.ReferenceAxis = (sketch16, ["Axis0"])
groove12.Angle = 360

# Sketch on YZ plane
sketch17 = body.newObject("Sketcher::SketchObject", "Sketch016")
sketch17.AttachmentSupport = (doc.getObject("YZ_Plane"), [""])
sketch17.MapMode = "FlatFace"
sketch17.AttachmentOffset = App.Placement(V(0, 0, 2.375 * 25.4), App.Rotation())
sketch17.addGeometry(Part.LineSegment(V(3.2, 46.6, 0), V(-23.8, 46.6, 0)), False)
sketch17.addGeometry(Part.LineSegment(V(-23.8, 46.6, 0), V(-22.2, 49.1, 0)), False)
sketch17.addGeometry(Part.LineSegment(V(-22.2, 49.1, 0), V(3.2, 49.1, 0)), False)
sketch17.addGeometry(Part.LineSegment(V(3.2, 49.1, 0), V(3.2, 46.6, 0)), False)
sketch17.addGeometry(Part.LineSegment(V(-23.8, 46.6, 0), V(3.2, 46.6, 0)), True)  # axis
sketch17.addConstraint(Sketcher.Constraint("Coincident", 0, 2, 1, 1))
sketch17.addConstraint(Sketcher.Constraint("Coincident", 1, 2, 2, 1))
sketch17.addConstraint(Sketcher.Constraint("Coincident", 2, 2, 3, 1))
sketch17.addConstraint(Sketcher.Constraint("Coincident", 3, 2, 0, 1))
sketch17.addConstraint(Sketcher.Constraint("Horizontal", 0))
sketch17.addConstraint(Sketcher.Constraint("Horizontal", 2))
sketch17.addConstraint(Sketcher.Constraint("Vertical", 3))
sketch17.addConstraint(Sketcher.Constraint("Horizontal", 4))
sketch17.addConstraint(Sketcher.Constraint("Coincident", 4, 1, 0, 2))
sketch17.addConstraint(Sketcher.Constraint("Vertical", 2, 2, 4, 2))
sketch17.addConstraint(Sketcher.Constraint("DistanceX", 2, 1, 2, 2, Q("1 in")))
sketch17.addConstraint(Sketcher.Constraint("Angle", 1, Q("59 deg")))
sketch17.addConstraint(Sketcher.Constraint("DistanceY", 3, 2, 3, 1, Q("0.1005 in")))
sketch17.addConstraint(Sketcher.Constraint("DistanceX", 1, 2, -1, 1, Q("0.875 in")))
sketch17.addConstraint(Sketcher.Constraint("DistanceY", -1, 1, 0, 2, 46.553705))
groove13 = body.newObject("PartDesign::Groove", "Groove012")
groove13.Profile = sketch17
groove13.ReferenceAxis = (sketch17, ["Axis0"])
groove13.Angle = 360

# Sketch on YZ plane
sketch18 = body.newObject("Sketcher::SketchObject", "Sketch017")
sketch18.AttachmentSupport = (doc.getObject("YZ_Plane"), [""])
sketch18.MapMode = "FlatFace"
sketch18.AttachmentOffset = App.Placement(V(0, 0, 2.375 * 25.4), App.Rotation())
sketch18.addGeometry(Part.LineSegment(V(3.2, 27.5, 0), V(-23.8, 27.5, 0)), False)
sketch18.addGeometry(Part.LineSegment(V(-23.8, 27.5, 0), V(-22.2, 30.1, 0)), False)
sketch18.addGeometry(Part.LineSegment(V(-22.2, 30.1, 0), V(3.2, 30.1, 0)), False)
sketch18.addGeometry(Part.LineSegment(V(3.2, 30.1, 0), V(3.2, 27.5, 0)), False)
sketch18.addGeometry(Part.LineSegment(V(-23.8, 27.5, 0), V(3.2, 27.5, 0)), True)  # axis
sketch18.addConstraint(Sketcher.Constraint("Coincident", 0, 2, 1, 1))
sketch18.addConstraint(Sketcher.Constraint("Coincident", 1, 2, 2, 1))
sketch18.addConstraint(Sketcher.Constraint("Coincident", 2, 2, 3, 1))
sketch18.addConstraint(Sketcher.Constraint("Coincident", 3, 2, 0, 1))
sketch18.addConstraint(Sketcher.Constraint("Horizontal", 0))
sketch18.addConstraint(Sketcher.Constraint("Horizontal", 2))
sketch18.addConstraint(Sketcher.Constraint("Vertical", 3))
sketch18.addConstraint(Sketcher.Constraint("Horizontal", 4))
sketch18.addConstraint(Sketcher.Constraint("Coincident", 4, 1, 0, 2))
sketch18.addConstraint(Sketcher.Constraint("Vertical", 2, 2, 4, 2))
sketch18.addConstraint(Sketcher.Constraint("DistanceX", 2, 1, 2, 2, Q("1 in")))
sketch18.addConstraint(Sketcher.Constraint("Angle", 1, Q("59 deg")))
sketch18.addConstraint(Sketcher.Constraint("DistanceY", 3, 2, 3, 1, Q("0.1005 in")))
sketch18.addConstraint(Sketcher.Constraint("DistanceX", 1, 2, -1, 1, Q("0.875 in")))
sketch18.addConstraint(Sketcher.Constraint("DistanceY", -1, 1, 0, 2, 27.503705))
groove14 = body.newObject("PartDesign::Groove", "Groove013")
groove14.Profile = sketch18
groove14.ReferenceAxis = (sketch18, ["Axis0"])
groove14.Angle = 360

# Sketch on YZ plane
sketch19 = body.newObject("Sketcher::SketchObject", "Sketch018")
sketch19.AttachmentSupport = (doc.getObject("YZ_Plane"), [""])
sketch19.MapMode = "FlatFace"
sketch19.AttachmentOffset = App.Placement(V(0, 0, 2.375 * 25.4), App.Rotation())
sketch19.addGeometry(Part.LineSegment(V(3.2, 8.5, 0), V(-23.8, 8.5, 0)), False)
sketch19.addGeometry(Part.LineSegment(V(-23.8, 8.5, 0), V(-22.2, 11, 0)), False)
sketch19.addGeometry(Part.LineSegment(V(-22.2, 11, 0), V(3.2, 11, 0)), False)
sketch19.addGeometry(Part.LineSegment(V(3.2, 11, 0), V(3.2, 8.5, 0)), False)
sketch19.addGeometry(Part.LineSegment(V(-23.8, 8.5, 0), V(3.2, 8.5, 0)), True)  # axis
sketch19.addConstraint(Sketcher.Constraint("Coincident", 0, 2, 1, 1))
sketch19.addConstraint(Sketcher.Constraint("Coincident", 1, 2, 2, 1))
sketch19.addConstraint(Sketcher.Constraint("Coincident", 2, 2, 3, 1))
sketch19.addConstraint(Sketcher.Constraint("Coincident", 3, 2, 0, 1))
sketch19.addConstraint(Sketcher.Constraint("Horizontal", 0))
sketch19.addConstraint(Sketcher.Constraint("Horizontal", 2))
sketch19.addConstraint(Sketcher.Constraint("Vertical", 3))
sketch19.addConstraint(Sketcher.Constraint("Horizontal", 4))
sketch19.addConstraint(Sketcher.Constraint("Coincident", 4, 1, 0, 2))
sketch19.addConstraint(Sketcher.Constraint("Vertical", 2, 2, 4, 2))
sketch19.addConstraint(Sketcher.Constraint("DistanceX", 2, 1, 2, 2, Q("1 in")))
sketch19.addConstraint(Sketcher.Constraint("Angle", 1, Q("59 deg")))
sketch19.addConstraint(Sketcher.Constraint("DistanceY", 3, 2, 3, 1, Q("0.1005 in")))
sketch19.addConstraint(Sketcher.Constraint("DistanceX", 1, 2, -1, 1, Q("0.875 in")))
sketch19.addConstraint(Sketcher.Constraint("DistanceY", -1, 1, 0, 2, 8.453705))
groove15 = body.newObject("PartDesign::Groove", "Groove014")
groove15.Profile = sketch19
groove15.ReferenceAxis = (sketch19, ["Axis0"])
groove15.Angle = 360

# Sketch on YZ plane
sketch20 = body.newObject("Sketcher::SketchObject", "Sketch019")
sketch20.AttachmentSupport = (doc.getObject("YZ_Plane"), [""])
sketch20.MapMode = "FlatFace"
sketch20.AttachmentOffset = App.Placement(V(0, 0, 2.375 * 25.4), App.Rotation())
sketch20.addGeometry(Part.LineSegment(V(3.2, -10.6, 0), V(-23.8, -10.6, 0)), False)
sketch20.addGeometry(Part.LineSegment(V(-23.8, -10.6, 0), V(-22.2, -8, 0)), False)
sketch20.addGeometry(Part.LineSegment(V(-22.2, -8, 0), V(3.2, -8, 0)), False)
sketch20.addGeometry(Part.LineSegment(V(3.2, -8, 0), V(3.2, -10.6, 0)), False)
sketch20.addGeometry(Part.LineSegment(V(-23.8, -10.6, 0), V(3.2, -10.6, 0)), True)  # axis
sketch20.addConstraint(Sketcher.Constraint("Coincident", 0, 2, 1, 1))
sketch20.addConstraint(Sketcher.Constraint("Coincident", 1, 2, 2, 1))
sketch20.addConstraint(Sketcher.Constraint("Coincident", 2, 2, 3, 1))
sketch20.addConstraint(Sketcher.Constraint("Coincident", 3, 2, 0, 1))
sketch20.addConstraint(Sketcher.Constraint("Horizontal", 0))
sketch20.addConstraint(Sketcher.Constraint("Horizontal", 2))
sketch20.addConstraint(Sketcher.Constraint("Vertical", 3))
sketch20.addConstraint(Sketcher.Constraint("Horizontal", 4))
sketch20.addConstraint(Sketcher.Constraint("Coincident", 4, 1, 0, 2))
sketch20.addConstraint(Sketcher.Constraint("Vertical", 2, 2, 4, 2))
sketch20.addConstraint(Sketcher.Constraint("DistanceX", 2, 1, 2, 2, Q("1 in")))
sketch20.addConstraint(Sketcher.Constraint("Angle", 1, Q("59 deg")))
sketch20.addConstraint(Sketcher.Constraint("DistanceY", 3, 2, 3, 1, Q("0.1005 in")))
sketch20.addConstraint(Sketcher.Constraint("DistanceX", 1, 2, -1, 1, Q("0.875 in")))
sketch20.addConstraint(Sketcher.Constraint("DistanceY", 0, 2, -1, 1, 10.596295))
groove16 = body.newObject("PartDesign::Groove", "Groove015")
groove16.Profile = sketch20
groove16.ReferenceAxis = (sketch20, ["Axis0"])
groove16.Angle = 360

# Sketch on YZ plane
sketch21 = body.newObject("Sketcher::SketchObject", "Sketch020")
sketch21.AttachmentSupport = (doc.getObject("YZ_Plane"), [""])
sketch21.MapMode = "FlatFace"
sketch21.AttachmentOffset = App.Placement(V(0, 0, 2.375 * 25.4), App.Rotation())
sketch21.addGeometry(Part.LineSegment(V(3.2, -29.6, 0), V(-23.8, -29.6, 0)), False)
sketch21.addGeometry(Part.LineSegment(V(-23.8, -29.6, 0), V(-22.2, -27.1, 0)), False)
sketch21.addGeometry(Part.LineSegment(V(-22.2, -27.1, 0), V(3.2, -27.1, 0)), False)
sketch21.addGeometry(Part.LineSegment(V(3.2, -27.1, 0), V(3.2, -29.6, 0)), False)
sketch21.addGeometry(Part.LineSegment(V(-23.8, -29.6, 0), V(3.2, -29.6, 0)), True)  # axis
sketch21.addConstraint(Sketcher.Constraint("Coincident", 0, 2, 1, 1))
sketch21.addConstraint(Sketcher.Constraint("Coincident", 1, 2, 2, 1))
sketch21.addConstraint(Sketcher.Constraint("Coincident", 2, 2, 3, 1))
sketch21.addConstraint(Sketcher.Constraint("Coincident", 3, 2, 0, 1))
sketch21.addConstraint(Sketcher.Constraint("Horizontal", 0))
sketch21.addConstraint(Sketcher.Constraint("Horizontal", 2))
sketch21.addConstraint(Sketcher.Constraint("Vertical", 3))
sketch21.addConstraint(Sketcher.Constraint("Horizontal", 4))
sketch21.addConstraint(Sketcher.Constraint("Coincident", 4, 1, 0, 2))
sketch21.addConstraint(Sketcher.Constraint("Vertical", 2, 2, 4, 2))
sketch21.addConstraint(Sketcher.Constraint("DistanceX", 2, 1, 2, 2, Q("1 in")))
sketch21.addConstraint(Sketcher.Constraint("Angle", 1, Q("59 deg")))
sketch21.addConstraint(Sketcher.Constraint("DistanceY", 3, 2, 3, 1, Q("0.1005 in")))
sketch21.addConstraint(Sketcher.Constraint("DistanceX", 1, 2, -1, 1, Q("0.875 in")))
sketch21.addConstraint(Sketcher.Constraint("DistanceY", 0, 2, -1, 1, 29.646295))
groove17 = body.newObject("PartDesign::Groove", "Groove016")
groove17.Profile = sketch21
groove17.ReferenceAxis = (sketch21, ["Axis0"])
groove17.Angle = 360

doc.recompute()
